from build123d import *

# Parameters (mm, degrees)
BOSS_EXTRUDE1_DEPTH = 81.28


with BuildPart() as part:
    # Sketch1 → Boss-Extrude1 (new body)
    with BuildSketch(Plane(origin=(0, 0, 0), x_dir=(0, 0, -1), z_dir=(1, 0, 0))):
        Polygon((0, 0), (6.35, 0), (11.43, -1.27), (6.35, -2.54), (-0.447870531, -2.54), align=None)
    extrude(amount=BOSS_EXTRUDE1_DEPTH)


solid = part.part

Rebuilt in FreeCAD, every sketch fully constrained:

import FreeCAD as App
import Part
import Sketcher
Q = App.Units.Quantity

doc = App.newDocument("Part")
body = doc.addObject("PartDesign::Body", "Body")

# Sketch on YZ plane
sketch1 = body.newObject("Sketcher::SketchObject", "Sketch")
sketch1.AttachmentSupport = (doc.getObject("YZ_Plane"), [""])
sketch1.MapMode = "FlatFace"
sketch1.addGeometry(Part.LineSegment(App.Vector(0, -6.3, 0), App.Vector(0, 0, 0)), False)
sketch1.addGeometry(Part.LineSegment(App.Vector(0, 0, 0), App.Vector(-2.5, 0.4, 0)), False)
sketch1.addGeometry(Part.LineSegment(App.Vector(-2.5, 0.4, 0), App.Vector(-2.5, -6.3, 0)), False)
sketch1.addGeometry(Part.LineSegment(App.Vector(-2.5, -6.3, 0), App.Vector(-1.3, -11.4, 0)), False)
sketch1.addGeometry(Part.LineSegment(App.Vector(-1.3, -11.4, 0), App.Vector(0, -6.3, 0)), False)
sketch1.addConstraint(Sketcher.Constraint("Coincident", 0, 2, 1, 1))
sketch1.addConstraint(Sketcher.Constraint("Coincident", 1, 2, 2, 1))
sketch1.addConstraint(Sketcher.Constraint("Coincident", 2, 2, 3, 1))
sketch1.addConstraint(Sketcher.Constraint("Coincident", 3, 2, 4, 1))
sketch1.addConstraint(Sketcher.Constraint("Coincident", 4, 2, 0, 1))
sketch1.addConstraint(Sketcher.Constraint("Vertical", 0))
sketch1.addConstraint(Sketcher.Constraint("Vertical", 2))
sketch1.addConstraint(Sketcher.Constraint("Coincident", 0, 2, -1, 1))
sketch1.addConstraint(Sketcher.Constraint("Horizontal", 2, 2, 4, 2))
sketch1.addConstraint(Sketcher.Constraint("Equal", 3, 4))
sketch1.addConstraint(Sketcher.Constraint("Angle", 1, Q("170 deg")))
sketch1.addConstraint(Sketcher.Constraint("DistanceY", 0, 1, 0, 2, Q("0.25 in")))
sketch1.addConstraint(Sketcher.Constraint("DistanceX", 1, 2, -1, 1, Q("0.1 in")))
sketch1.addConstraint(Sketcher.Constraint("DistanceY", 3, 2, 2, 2, Q("0.2 in")))
pad1 = body.newObject("PartDesign::Pad", "Pad")
pad1.Profile = sketch1
pad1.Length = Q("3.2 in")

doc.recompute()
